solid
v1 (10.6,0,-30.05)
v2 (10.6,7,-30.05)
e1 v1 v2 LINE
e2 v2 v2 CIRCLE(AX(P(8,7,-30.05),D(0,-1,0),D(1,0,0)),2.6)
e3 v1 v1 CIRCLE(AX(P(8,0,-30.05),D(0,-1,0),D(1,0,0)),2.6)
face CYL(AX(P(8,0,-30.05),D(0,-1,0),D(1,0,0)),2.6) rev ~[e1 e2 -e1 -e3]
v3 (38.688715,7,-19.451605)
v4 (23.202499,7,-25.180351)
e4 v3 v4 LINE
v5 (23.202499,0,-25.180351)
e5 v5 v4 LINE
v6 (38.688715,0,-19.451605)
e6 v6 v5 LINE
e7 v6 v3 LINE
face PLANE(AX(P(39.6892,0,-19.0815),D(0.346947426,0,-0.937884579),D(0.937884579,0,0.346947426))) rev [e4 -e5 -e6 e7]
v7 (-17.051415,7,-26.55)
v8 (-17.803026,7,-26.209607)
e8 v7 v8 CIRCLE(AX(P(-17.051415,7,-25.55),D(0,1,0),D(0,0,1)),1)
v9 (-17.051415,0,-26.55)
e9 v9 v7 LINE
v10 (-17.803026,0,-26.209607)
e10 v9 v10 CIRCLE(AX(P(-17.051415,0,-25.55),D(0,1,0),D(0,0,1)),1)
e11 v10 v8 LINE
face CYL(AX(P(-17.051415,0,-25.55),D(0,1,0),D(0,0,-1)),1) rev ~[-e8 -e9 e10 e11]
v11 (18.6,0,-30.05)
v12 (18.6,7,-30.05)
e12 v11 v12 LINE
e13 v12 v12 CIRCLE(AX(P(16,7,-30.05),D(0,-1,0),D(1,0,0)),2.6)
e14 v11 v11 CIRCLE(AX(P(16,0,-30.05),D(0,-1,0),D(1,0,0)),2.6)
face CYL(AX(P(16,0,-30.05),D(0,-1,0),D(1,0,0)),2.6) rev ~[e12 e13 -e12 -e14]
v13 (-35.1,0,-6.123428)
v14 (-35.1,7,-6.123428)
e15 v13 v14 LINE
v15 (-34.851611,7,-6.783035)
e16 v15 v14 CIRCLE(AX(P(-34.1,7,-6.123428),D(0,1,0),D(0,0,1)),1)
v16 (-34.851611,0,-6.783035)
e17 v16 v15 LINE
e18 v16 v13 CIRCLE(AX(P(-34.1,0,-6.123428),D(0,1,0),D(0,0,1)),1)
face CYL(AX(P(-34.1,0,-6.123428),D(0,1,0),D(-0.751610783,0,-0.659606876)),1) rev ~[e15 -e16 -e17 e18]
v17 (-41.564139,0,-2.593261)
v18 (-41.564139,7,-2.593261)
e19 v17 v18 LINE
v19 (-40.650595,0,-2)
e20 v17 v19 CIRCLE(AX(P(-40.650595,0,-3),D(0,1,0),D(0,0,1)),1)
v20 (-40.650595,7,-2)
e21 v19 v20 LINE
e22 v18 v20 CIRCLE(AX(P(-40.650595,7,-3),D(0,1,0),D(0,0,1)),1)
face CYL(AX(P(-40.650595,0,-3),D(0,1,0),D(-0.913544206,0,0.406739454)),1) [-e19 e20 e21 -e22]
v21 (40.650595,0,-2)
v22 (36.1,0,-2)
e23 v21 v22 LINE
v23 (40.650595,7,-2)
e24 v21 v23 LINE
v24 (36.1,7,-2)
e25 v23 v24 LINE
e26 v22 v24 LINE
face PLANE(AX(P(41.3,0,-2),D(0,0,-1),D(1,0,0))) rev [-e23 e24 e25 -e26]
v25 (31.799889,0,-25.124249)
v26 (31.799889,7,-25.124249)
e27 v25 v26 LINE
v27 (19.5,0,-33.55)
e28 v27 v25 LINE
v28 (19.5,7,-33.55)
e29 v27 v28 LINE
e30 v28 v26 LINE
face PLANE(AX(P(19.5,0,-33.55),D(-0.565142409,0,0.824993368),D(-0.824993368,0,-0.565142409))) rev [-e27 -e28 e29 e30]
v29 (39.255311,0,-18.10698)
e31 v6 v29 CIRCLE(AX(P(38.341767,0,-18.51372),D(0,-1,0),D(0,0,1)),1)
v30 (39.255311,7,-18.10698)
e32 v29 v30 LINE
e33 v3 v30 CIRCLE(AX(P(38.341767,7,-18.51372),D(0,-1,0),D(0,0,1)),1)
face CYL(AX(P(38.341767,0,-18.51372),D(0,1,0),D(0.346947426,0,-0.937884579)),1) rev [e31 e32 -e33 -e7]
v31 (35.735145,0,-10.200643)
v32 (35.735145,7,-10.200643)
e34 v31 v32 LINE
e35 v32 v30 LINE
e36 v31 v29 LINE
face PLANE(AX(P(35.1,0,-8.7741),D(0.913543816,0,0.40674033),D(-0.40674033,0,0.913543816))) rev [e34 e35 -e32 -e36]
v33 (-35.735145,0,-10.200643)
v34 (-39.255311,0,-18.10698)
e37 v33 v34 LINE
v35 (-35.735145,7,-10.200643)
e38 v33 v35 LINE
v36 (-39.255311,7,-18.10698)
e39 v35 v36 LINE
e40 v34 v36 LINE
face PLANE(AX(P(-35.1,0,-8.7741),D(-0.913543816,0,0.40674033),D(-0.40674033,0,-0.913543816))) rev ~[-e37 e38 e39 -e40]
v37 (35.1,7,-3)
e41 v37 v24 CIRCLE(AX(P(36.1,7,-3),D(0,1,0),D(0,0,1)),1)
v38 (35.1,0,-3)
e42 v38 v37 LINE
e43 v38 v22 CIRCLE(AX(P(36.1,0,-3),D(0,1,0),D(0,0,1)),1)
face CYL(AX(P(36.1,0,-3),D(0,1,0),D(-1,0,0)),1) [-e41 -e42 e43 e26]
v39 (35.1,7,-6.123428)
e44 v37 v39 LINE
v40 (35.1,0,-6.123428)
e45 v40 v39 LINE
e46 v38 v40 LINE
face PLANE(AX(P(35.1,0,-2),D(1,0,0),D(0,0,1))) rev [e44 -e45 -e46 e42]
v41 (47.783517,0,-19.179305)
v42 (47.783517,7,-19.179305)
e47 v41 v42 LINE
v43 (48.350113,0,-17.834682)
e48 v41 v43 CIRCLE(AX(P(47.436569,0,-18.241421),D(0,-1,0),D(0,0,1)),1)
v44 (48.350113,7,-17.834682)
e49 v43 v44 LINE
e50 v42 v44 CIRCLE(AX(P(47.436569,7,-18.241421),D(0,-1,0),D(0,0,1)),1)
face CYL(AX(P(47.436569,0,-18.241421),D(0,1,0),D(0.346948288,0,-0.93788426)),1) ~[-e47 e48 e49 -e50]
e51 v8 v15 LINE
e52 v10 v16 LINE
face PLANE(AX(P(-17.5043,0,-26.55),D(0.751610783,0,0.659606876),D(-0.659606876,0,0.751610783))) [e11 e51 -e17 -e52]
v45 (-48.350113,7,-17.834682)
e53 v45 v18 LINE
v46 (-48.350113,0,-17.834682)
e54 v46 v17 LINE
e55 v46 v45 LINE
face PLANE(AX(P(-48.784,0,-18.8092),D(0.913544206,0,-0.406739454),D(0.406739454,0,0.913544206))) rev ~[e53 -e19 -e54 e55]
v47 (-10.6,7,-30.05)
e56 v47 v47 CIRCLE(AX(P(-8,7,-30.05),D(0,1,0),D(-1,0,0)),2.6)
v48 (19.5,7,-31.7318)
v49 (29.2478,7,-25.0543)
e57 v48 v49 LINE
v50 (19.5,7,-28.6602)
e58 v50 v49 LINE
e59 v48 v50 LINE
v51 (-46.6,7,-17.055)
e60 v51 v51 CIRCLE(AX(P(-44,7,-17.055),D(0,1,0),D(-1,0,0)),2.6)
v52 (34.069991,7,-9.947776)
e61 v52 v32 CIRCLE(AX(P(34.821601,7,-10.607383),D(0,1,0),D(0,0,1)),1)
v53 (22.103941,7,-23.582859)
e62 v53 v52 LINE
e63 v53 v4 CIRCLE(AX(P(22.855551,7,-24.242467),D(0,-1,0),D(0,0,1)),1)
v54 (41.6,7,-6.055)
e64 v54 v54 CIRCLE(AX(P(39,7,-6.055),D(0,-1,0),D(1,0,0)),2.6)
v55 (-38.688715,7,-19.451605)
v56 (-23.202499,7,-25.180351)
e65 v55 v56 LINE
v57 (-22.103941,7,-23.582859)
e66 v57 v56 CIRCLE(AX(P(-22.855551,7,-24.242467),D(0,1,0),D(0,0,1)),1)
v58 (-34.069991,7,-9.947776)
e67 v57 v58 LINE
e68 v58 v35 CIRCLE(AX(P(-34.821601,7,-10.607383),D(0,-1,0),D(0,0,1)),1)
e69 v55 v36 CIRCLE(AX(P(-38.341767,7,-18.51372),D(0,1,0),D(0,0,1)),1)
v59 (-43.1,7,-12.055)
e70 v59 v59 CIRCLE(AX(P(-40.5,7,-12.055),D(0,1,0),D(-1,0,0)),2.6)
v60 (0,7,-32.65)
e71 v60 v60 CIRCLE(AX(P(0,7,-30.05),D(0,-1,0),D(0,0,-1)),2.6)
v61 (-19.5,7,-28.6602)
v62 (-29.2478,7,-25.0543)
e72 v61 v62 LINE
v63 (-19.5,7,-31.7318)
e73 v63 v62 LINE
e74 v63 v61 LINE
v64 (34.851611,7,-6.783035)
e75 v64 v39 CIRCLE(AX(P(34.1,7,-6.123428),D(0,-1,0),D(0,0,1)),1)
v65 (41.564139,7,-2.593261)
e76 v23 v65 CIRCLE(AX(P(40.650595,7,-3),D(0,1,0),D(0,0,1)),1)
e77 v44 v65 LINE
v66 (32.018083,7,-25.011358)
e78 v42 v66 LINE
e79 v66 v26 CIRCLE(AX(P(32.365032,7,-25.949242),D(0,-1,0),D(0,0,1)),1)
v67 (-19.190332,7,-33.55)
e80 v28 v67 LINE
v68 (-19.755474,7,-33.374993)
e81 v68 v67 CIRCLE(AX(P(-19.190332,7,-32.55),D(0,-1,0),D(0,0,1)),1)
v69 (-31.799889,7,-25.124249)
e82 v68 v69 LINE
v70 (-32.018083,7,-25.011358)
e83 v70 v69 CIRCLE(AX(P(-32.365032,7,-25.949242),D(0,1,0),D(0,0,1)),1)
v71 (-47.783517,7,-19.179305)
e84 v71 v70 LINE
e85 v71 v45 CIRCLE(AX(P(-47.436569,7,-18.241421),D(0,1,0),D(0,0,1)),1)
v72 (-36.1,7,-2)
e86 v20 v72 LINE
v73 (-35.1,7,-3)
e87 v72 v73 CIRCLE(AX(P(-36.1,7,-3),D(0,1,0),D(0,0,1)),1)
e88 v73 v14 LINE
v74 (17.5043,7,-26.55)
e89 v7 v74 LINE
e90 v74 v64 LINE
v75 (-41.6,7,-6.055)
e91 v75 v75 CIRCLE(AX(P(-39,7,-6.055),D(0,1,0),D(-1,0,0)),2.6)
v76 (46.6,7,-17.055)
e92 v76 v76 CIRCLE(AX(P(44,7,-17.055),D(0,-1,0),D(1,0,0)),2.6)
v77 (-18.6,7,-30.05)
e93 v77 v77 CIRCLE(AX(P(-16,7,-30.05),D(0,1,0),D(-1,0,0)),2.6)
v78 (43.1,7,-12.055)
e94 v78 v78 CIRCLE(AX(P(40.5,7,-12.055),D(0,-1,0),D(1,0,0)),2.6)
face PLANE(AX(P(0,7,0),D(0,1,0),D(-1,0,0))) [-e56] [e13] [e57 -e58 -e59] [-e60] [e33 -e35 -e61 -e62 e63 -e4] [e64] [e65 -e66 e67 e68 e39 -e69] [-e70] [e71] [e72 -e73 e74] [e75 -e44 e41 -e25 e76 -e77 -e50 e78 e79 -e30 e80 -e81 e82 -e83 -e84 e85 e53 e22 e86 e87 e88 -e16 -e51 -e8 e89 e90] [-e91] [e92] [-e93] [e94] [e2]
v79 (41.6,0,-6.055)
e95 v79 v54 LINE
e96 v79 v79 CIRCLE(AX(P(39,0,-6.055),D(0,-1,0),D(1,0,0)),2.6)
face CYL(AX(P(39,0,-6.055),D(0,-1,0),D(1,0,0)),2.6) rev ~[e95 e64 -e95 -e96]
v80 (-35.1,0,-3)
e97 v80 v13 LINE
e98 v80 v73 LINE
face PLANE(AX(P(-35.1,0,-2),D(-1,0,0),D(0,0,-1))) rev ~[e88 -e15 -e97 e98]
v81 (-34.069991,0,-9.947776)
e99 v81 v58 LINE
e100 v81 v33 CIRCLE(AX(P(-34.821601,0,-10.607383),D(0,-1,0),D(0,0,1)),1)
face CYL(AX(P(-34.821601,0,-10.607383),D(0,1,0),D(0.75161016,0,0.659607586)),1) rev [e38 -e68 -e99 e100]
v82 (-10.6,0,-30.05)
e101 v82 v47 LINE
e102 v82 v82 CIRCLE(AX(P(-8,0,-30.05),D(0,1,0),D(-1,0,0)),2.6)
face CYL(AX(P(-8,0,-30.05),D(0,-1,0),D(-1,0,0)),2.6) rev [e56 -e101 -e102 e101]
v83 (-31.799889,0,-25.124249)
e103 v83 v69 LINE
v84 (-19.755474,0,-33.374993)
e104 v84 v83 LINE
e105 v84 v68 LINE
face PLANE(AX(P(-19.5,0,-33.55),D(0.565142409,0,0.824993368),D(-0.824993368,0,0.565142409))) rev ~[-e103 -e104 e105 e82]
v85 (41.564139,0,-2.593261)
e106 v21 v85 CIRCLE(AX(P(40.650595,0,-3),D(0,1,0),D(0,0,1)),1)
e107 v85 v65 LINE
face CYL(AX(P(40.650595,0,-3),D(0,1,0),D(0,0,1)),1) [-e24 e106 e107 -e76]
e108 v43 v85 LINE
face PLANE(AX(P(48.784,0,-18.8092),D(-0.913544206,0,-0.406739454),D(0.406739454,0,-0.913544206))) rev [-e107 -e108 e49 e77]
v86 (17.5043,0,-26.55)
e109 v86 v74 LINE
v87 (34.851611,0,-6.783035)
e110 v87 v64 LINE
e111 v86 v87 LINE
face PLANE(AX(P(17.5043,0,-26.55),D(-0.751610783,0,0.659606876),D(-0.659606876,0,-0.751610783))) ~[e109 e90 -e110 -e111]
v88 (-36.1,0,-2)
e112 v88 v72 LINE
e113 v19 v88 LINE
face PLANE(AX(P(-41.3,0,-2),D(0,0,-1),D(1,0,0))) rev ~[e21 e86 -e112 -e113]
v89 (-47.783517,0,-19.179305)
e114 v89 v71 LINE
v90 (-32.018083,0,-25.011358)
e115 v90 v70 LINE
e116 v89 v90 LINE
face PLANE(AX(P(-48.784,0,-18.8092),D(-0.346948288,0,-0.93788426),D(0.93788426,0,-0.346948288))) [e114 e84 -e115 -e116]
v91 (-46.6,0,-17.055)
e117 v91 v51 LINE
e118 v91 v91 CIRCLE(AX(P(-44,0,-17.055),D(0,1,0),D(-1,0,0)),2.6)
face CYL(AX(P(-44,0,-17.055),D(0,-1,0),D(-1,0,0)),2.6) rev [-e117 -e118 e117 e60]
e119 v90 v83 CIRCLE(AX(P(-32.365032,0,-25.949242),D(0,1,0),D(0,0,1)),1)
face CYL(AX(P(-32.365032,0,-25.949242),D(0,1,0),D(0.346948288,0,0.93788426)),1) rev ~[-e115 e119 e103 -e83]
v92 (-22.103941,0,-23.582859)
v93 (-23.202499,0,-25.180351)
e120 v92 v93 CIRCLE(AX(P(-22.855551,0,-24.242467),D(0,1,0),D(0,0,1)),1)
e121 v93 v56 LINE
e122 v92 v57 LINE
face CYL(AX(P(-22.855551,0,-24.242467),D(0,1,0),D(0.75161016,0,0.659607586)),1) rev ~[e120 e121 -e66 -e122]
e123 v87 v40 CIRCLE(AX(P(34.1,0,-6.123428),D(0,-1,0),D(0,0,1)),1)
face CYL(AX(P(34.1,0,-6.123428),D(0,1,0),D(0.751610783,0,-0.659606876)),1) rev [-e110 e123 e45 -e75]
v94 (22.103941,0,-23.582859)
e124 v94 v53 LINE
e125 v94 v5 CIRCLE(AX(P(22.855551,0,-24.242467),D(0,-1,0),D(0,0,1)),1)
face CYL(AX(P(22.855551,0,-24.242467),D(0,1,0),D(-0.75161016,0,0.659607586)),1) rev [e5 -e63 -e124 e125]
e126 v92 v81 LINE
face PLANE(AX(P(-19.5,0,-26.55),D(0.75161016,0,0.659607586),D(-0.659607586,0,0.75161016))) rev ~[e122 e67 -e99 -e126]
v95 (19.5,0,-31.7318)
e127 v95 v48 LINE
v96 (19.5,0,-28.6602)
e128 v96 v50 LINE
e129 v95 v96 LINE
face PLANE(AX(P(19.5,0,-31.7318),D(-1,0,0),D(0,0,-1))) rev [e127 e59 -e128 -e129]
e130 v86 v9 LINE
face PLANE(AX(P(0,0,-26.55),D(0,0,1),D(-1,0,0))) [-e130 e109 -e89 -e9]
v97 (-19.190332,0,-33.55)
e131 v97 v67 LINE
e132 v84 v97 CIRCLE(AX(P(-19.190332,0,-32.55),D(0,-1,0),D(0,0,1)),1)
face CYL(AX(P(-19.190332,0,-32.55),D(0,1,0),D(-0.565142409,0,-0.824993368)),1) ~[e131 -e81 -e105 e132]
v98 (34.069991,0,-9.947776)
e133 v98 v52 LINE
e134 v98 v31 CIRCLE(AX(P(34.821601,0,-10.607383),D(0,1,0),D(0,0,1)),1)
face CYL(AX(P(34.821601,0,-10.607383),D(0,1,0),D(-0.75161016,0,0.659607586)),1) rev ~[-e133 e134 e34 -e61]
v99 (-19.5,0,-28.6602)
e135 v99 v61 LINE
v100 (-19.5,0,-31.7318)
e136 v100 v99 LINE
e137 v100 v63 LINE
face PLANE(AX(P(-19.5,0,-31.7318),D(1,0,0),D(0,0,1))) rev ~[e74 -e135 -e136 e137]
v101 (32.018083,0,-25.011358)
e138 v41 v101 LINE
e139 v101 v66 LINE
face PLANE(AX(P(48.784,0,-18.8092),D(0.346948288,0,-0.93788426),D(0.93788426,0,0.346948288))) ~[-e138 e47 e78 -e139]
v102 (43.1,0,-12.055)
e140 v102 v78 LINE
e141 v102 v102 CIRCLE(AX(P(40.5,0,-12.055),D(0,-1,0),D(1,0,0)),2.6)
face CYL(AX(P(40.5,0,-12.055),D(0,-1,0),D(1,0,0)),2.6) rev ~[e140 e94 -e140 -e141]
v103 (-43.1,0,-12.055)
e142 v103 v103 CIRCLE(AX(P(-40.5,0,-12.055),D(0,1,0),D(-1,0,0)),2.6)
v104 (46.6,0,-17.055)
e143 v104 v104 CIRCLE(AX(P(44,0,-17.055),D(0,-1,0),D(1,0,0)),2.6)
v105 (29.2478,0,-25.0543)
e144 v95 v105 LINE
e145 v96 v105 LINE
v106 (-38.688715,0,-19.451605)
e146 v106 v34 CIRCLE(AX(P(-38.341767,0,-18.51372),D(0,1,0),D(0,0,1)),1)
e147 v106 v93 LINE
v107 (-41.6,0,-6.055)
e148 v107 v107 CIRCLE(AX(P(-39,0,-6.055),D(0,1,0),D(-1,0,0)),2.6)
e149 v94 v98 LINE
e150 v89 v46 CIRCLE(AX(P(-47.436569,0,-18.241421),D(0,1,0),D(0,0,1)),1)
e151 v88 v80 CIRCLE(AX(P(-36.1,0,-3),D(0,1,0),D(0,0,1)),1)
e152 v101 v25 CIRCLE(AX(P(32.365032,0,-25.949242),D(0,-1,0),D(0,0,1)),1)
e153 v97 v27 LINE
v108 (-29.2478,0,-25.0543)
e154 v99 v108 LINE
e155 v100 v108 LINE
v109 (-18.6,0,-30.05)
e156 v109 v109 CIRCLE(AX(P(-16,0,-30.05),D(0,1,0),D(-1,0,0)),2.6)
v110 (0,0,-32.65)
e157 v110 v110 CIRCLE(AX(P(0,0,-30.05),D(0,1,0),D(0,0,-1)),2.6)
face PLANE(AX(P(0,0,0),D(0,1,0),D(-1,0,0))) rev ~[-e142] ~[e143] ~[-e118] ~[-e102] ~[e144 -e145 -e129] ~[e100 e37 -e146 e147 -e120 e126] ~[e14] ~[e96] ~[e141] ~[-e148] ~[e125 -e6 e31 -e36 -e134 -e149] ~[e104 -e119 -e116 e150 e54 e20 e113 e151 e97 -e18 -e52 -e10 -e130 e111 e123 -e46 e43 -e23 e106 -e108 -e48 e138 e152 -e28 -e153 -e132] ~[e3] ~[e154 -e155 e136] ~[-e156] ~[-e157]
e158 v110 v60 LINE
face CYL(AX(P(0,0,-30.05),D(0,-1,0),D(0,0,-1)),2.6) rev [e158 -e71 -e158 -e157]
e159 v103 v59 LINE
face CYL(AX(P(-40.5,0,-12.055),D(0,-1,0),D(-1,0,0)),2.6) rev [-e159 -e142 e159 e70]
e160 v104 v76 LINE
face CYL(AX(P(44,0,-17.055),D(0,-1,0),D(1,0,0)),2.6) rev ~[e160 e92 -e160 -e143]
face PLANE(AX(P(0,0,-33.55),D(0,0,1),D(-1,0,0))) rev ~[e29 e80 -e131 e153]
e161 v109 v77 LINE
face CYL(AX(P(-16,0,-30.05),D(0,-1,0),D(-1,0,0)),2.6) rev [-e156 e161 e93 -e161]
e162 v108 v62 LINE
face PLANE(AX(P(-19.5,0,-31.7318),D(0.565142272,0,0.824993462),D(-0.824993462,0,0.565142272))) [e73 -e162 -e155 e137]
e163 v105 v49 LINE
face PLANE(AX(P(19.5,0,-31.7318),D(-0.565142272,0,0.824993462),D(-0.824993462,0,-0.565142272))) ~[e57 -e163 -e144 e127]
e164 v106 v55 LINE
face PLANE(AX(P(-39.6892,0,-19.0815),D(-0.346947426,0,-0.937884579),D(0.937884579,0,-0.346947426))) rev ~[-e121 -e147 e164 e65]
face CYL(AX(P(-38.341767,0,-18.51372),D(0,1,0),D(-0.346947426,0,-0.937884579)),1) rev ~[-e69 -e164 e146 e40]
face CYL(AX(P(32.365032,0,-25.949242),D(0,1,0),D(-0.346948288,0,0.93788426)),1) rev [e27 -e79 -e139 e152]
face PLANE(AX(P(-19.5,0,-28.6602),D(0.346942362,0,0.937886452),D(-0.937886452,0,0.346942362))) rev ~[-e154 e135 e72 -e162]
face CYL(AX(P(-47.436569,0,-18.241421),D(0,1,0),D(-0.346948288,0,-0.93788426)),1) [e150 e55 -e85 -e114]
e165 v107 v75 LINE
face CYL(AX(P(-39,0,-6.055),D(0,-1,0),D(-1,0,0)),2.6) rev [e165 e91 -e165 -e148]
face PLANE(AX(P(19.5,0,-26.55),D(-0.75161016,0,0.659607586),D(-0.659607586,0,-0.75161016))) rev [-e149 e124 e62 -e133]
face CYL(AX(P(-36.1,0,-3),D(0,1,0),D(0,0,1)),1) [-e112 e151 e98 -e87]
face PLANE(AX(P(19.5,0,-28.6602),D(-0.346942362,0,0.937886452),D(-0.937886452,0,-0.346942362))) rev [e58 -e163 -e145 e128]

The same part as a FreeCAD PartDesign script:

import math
import FreeCAD as App
import Part
import Sketcher
Q = App.Units.Quantity


def edges_at(feature, points):
    """Names of the edges that pass closest to the given points."""
    edges = feature.Shape.Edges
    near = lambda p: min(range(len(edges)), key=lambda i: edges[i].distToShape(Part.Vertex(*p))[0])
    return sorted({f"Edge{near(p) + 1}" for p in points})


def add_polygon(sketch, points):
    """Adds a closed chain of lines whose ends are joined by coincident constraints."""
    first, n = sketch.GeometryCount, len(points)
    for a, b in zip(points, points[1:] + points[:1]):
        sketch.addGeometry(Part.LineSegment(App.Vector(*a, 0), App.Vector(*b, 0)), False)
    for i in range(n):
        sketch.addConstraint(Sketcher.Constraint("Coincident", first + i, 2, first + (i + 1) % n, 1))

doc = App.newDocument("Part")
body = doc.addObject("PartDesign::Body", "Body")

# Sketch on XZ plane
sketch1 = doc.addObject("Sketcher::SketchObject", "Sketch")
body.addObject(sketch1)
sketch1.AttachmentSupport = (doc.XZ_Plane, [""])
sketch1.MapMode = "FlatFace"
sketch1.addGeometry(Part.LineSegment(App.Vector(-31.902, -25.0543, 0), App.Vector(-48.784, -18.8092, 0)), False)  # 0
sketch1.addGeometry(Part.LineSegment(App.Vector(-48.784, -18.8092, 0), App.Vector(-41.3, -2, 0)), False)  # 1
sketch1.addGeometry(Part.LineSegment(App.Vector(-41.3, -2, 0), App.Vector(-35.1, -2, 0)), False)  # 2
sketch1.addGeometry(Part.LineSegment(App.Vector(-35.1, -2, 0), App.Vector(-35.1, -6.5, 0)), False)  # 3
sketch1.addGeometry(Part.LineSegment(App.Vector(-35.1, -6.5, 0), App.Vector(-17.5043, -26.55, 0)), False)  # 4
sketch1.addGeometry(Part.LineSegment(App.Vector(-17.5043, -26.55, 0), App.Vector(0, -26.55, 0)), False)  # 5
sketch1.addGeometry(Part.LineSegment(App.Vector(0, -26.55, 0), App.Vector(0, -27.45, 0)), False)  # 6
sketch1.addGeometry(Part.ArcOfCircle(Part.Circle(App.Vector(0, -30.05, 0), App.Vector(0, 0, 1), 2.6), math.radians(90), math.radians(270)), False)  # 7
sketch1.addGeometry(Part.LineSegment(App.Vector(0, -32.65, 0), App.Vector(0, -33.55, 0)), False)  # 8
sketch1.addGeometry(Part.LineSegment(App.Vector(0, -33.55, 0), App.Vector(-19.5, -33.55, 0)), False)  # 9
sketch1.addGeometry(Part.LineSegment(App.Vector(-19.5, -33.55, 0), App.Vector(-31.902, -25.0543, 0)), False)  # 10
sketch1.addGeometry(Part.Circle(App.Vector(-8, -30.05, 0), App.Vector(0, 0, 1), 2.6), False)  # 11
sketch1.addGeometry(Part.Circle(App.Vector(-16, -30.05, 0), App.Vector(0, 0, 1), 2.6), False)  # 12
add_polygon(sketch1, [(-29.2478, -25.0543), (-19.5, -31.7318), (-19.5, -28.6602)])  # lines 13-15
add_polygon(sketch1, [(-19.5, -26.55), (-35.1, -8.7741), (-39.6892, -19.0815)])  # lines 16-18
sketch1.addGeometry(Part.Circle(App.Vector(-44, -17.055, 0), App.Vector(0, 0, 1), 2.6), False)  # 19
sketch1.addGeometry(Part.Circle(App.Vector(-40.5, -12.055, 0), App.Vector(0, 0, 1), 2.6), False)  # 20
sketch1.addGeometry(Part.Circle(App.Vector(-39, -6.055, 0), App.Vector(0, 0, 1), 2.6), False)  # 21
sketch1.addConstraint([
    Sketcher.Constraint("Coincident", 0, 2, 1, 1),
    Sketcher.Constraint("Coincident", 1, 2, 2, 1),
    Sketcher.Constraint("Coincident", 2, 2, 3, 1),
    Sketcher.Constraint("Coincident", 3, 2, 4, 1),
    Sketcher.Constraint("Coincident", 4, 2, 5, 1),
    Sketcher.Constraint("Coincident", 5, 2, 6, 1),
    Sketcher.Constraint("Coincident", 6, 2, 7, 1),
    Sketcher.Constraint("Coincident", 7, 2, 8, 1),
    Sketcher.Constraint("Coincident", 8, 2, 9, 1),
    Sketcher.Constraint("Coincident", 9, 2, 10, 1),
    Sketcher.Constraint("Coincident", 10, 2, 0, 1),
    Sketcher.Constraint("Horizontal", 2),
    Sketcher.Constraint("Vertical", 3),
    Sketcher.Constraint("Horizontal", 5),
    Sketcher.Constraint("Vertical", 6),
    Sketcher.Constraint("Vertical", 8),
    Sketcher.Constraint("Horizontal", 9),
    Sketcher.Constraint("Vertical", 14),
    Sketcher.Constraint("Equal", 7, 11),
    Sketcher.Constraint("Equal", 11, 12),
    Sketcher.Constraint("Equal", 12, 19),
    Sketcher.Constraint("Equal", 19, 20),
    Sketcher.Constraint("Equal", 20, 21),
    Sketcher.Constraint("PointOnObject", 7, 3, -2),
    Sketcher.Constraint("PointOnObject", 5, 2, -2),
    Sketcher.Constraint("PointOnObject", 7, 2, -2),
    Sketcher.Constraint("Parallel", 10, 13),
    Sketcher.Constraint("Parallel", 0, 15),
    Sketcher.Constraint("Parallel", 4, 16),
    Sketcher.Constraint("Parallel", 1, 17),
    Sketcher.Constraint("Parallel", 15, 18),
    Sketcher.Constraint("Horizontal", 7, 3, 11, 3),
    Sketcher.Constraint("Horizontal", 11, 3, 12, 3),
    Sketcher.Constraint("Horizontal", 10, 2, 15, 2),
    Sketcher.Constraint("Horizontal", 5, 2, 18, 2),
    Sketcher.Constraint("Vertical", 9, 2, 13, 2),
    Sketcher.Constraint("Vertical", 3, 2, 16, 2),
    Sketcher.Constraint("Vertical", 14, 2, 18, 2),
    Sketcher.Constraint("Equal", 6, 8),
    Sketcher.Constraint("Diameter", 11, Q("5.2 mm")),
    Sketcher.Constraint("Angle", 17, Q("-114.0002 deg")),
    Sketcher.Constraint("Distance", 0, Q("18 mm")),
    Sketcher.Constraint("DistanceX", 2, 1, 2, 2, Q("6.2 mm")),
    Sketcher.Constraint("DistanceX", 9, 2, 9, 1, Q("19.5 mm")),
    Sketcher.Constraint("DistanceY", 3, 2, 3, 1, Q("4.5 mm")),
    Sketcher.Constraint("DistanceX", 11, 3, -1, 1, Q("8 mm")),
    Sketcher.Constraint("DistanceX", 21, 3, -1, 1, Q("39 mm")),
    Sketcher.Constraint("DistanceY", 1, 2, -1, 1, Q("2 mm")),
    Sketcher.Constraint("DistanceX", 12, 3, 11, 3, Q("8 mm")),
    Sketcher.Constraint("DistanceY", 19, 3, 20, 3, Q("5 mm")),
    Sketcher.Constraint("DistanceY", 20, 3, 21, 3, Q("6 mm")),
    Sketcher.Constraint("DistanceX", 19, 3, 21, 3, Q("5 mm")),
    Sketcher.Constraint("Distance", 1, Q("18.4 mm")),
    Sketcher.Constraint("DistanceX", 19, 3, 20, 3, Q("3.5 mm")),
    Sketcher.Constraint("DistanceX", 21, 3, 2, 2, Q("3.9 mm")),
    Sketcher.Constraint("DistanceY", 12, 3, 4, 2, Q("3.5 mm")),
    Sketcher.Constraint("DistanceY", 7, 3, -1, 1, Q("30.05 mm")),
    Sketcher.Constraint("DistanceY", 21, 3, -1, 1, Q("6.055 mm")),
    Sketcher.Constraint("Angle", 0, Q("159.6992 deg")),
    Sketcher.Constraint("Angle", 4, Q("-48.73 deg")),
    Sketcher.Constraint("DistanceY", 14, 1, 14, 2, Q("3.0716 mm")),
])
pad1 = doc.addObject("PartDesign::Pad", "Pad")
body.addObject(pad1)
pad1.Profile = sketch1
pad1.Length = 7
pad1.Reversed = True
doc.recompute()

mirrored = doc.addObject("PartDesign::Mirrored", "Mirrored")
body.addObject(mirrored)
mirrored.Originals = [pad1]
mirrored.MirrorPlane = (doc.YZ_Plane, [""])
body.Tip = mirrored
doc.recompute()

fillet = doc.addObject("PartDesign::Fillet", "Fillet")
body.addObject(fillet)
fillet.Base = (mirrored, edges_at(mirrored, [
    (-35.1, 3.5, -8.774),
    (-39.689, 3.5, -19.081),
    (-19.5, 3.5, -26.55),
    (19.5, 3.5, -26.55),
    (39.689, 3.5, -19.081),
    (35.1, 3.5, -8.774),
    (48.784, 3.5, -18.809),
    (41.3, 3.5, -2),
    (35.1, 3.5, -2),
    (35.1, 3.5, -6.5),
    (-17.504, 3.5, -26.55),
    (-35.1, 3.5, -6.5),
    (-35.1, 3.5, -2),
    (-41.3, 3.5, -2),
    (-48.784, 3.5, -18.809),
    (-31.902, 3.5, -25.054),
    (-19.5, 3.5, -33.55),
    (31.902, 3.5, -25.054),
]))
fillet.Radius = 1

doc.recompute()
